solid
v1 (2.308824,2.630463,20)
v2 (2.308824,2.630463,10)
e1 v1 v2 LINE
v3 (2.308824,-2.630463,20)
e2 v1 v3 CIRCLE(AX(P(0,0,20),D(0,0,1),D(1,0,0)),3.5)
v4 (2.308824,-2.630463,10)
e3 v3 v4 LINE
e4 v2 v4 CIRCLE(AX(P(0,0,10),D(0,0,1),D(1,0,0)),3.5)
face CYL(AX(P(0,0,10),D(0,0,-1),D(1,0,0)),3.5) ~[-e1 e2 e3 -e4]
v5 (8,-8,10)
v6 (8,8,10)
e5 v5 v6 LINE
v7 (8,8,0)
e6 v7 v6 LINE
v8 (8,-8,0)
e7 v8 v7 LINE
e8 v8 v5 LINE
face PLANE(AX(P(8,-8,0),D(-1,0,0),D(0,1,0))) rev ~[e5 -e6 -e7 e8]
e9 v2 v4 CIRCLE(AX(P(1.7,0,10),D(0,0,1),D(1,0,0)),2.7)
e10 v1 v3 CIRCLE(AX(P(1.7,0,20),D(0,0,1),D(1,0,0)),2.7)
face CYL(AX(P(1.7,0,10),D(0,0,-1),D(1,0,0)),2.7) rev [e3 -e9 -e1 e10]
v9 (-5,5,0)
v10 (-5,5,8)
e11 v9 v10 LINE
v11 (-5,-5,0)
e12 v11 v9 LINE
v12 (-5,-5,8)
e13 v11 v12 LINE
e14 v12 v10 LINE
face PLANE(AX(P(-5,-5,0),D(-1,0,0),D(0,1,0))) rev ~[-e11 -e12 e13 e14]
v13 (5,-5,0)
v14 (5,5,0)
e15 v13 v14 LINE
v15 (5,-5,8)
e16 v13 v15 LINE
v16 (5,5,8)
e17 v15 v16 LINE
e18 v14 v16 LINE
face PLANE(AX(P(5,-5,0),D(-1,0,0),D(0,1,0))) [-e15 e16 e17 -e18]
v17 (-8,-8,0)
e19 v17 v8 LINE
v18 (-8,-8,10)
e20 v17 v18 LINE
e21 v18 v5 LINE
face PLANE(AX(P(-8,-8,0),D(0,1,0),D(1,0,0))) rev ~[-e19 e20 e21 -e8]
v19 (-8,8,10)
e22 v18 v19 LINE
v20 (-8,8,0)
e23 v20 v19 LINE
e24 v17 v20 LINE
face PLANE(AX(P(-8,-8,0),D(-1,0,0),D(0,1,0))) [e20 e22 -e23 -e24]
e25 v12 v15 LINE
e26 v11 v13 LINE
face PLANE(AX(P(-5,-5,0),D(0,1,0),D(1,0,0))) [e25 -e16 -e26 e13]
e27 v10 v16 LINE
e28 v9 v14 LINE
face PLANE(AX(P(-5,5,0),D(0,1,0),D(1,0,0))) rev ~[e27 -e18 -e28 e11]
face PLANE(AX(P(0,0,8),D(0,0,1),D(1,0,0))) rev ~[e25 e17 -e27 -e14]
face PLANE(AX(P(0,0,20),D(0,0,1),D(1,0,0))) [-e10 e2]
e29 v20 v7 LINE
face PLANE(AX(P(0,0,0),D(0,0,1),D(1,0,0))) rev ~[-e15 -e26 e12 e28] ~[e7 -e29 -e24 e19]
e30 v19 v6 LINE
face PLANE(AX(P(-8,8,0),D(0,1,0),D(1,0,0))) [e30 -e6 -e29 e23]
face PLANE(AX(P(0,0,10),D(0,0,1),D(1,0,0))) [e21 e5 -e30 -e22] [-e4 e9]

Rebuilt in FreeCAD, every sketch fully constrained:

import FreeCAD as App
import Part
import Sketcher
from FreeCAD import Vector

doc = App.newDocument("Part")
body = doc.addObject("PartDesign::Body", "Body")

# Sketch on XY plane
sketch1 = body.newObject("Sketcher::SketchObject", "Sketch")
sketch1.AttachmentSupport = (doc.getObject("XY_Plane"), [""])
sketch1.MapMode = "FlatFace"
sketch1.addGeometry(Part.LineSegment(Vector(-5, 5, 0), Vector(-5, -5, 0)), False)
sketch1.addGeometry(Part.LineSegment(Vector(-5, -5, 0), Vector(5, -5, 0)), False)
sketch1.addGeometry(Part.LineSegment(Vector(5, -5, 0), Vector(5, 5, 0)), False)
sketch1.addGeometry(Part.LineSegment(Vector(5, 5, 0), Vector(-5, 5, 0)), False)
sketch1.addConstraint(Sketcher.Constraint("Coincident", 0, 2, 1, 1))
sketch1.addConstraint(Sketcher.Constraint("Coincident", 1, 2, 2, 1))
sketch1.addConstraint(Sketcher.Constraint("Coincident", 2, 2, 3, 1))
sketch1.addConstraint(Sketcher.Constraint("Coincident", 3, 2, 0, 1))
sketch1.addConstraint(Sketcher.Constraint("Vertical", 0))
sketch1.addConstraint(Sketcher.Constraint("Horizontal", 1))
sketch1.addConstraint(Sketcher.Constraint("Vertical", 2))
sketch1.addConstraint(Sketcher.Constraint("Horizontal", 3))
sketch1.addConstraint(Sketcher.Constraint("Symmetric", 0, 2, 2, 2, -1, 1))
sketch1.addConstraint(Sketcher.Constraint("Equal", 3, 0))
sketch1.addConstraint(Sketcher.Constraint("DistanceX", 1, 1, 1, 2, 10.0))
pad1 = body.newObject("PartDesign::Pad", "Pad")
pad1.Profile = sketch1
pad1.Length = 8
body2 = doc.addObject("PartDesign::Body", "Body001")

# Sketch on XY plane
sketch2 = body2.newObject("Sketcher::SketchObject", "Sketch001")
sketch2.AttachmentSupport = (doc.getObject("XY_Plane001"), [""])
sketch2.MapMode = "FlatFace"
sketch2.AttachmentOffset = App.Placement(Vector(0, 0, 10), App.Rotation())
sketch2.addGeometry(Part.Circle(Vector(1.7, 0, 0), Vector(0, 0, 1), 2.7), False)
sketch2.addConstraint(Sketcher.Constraint("PointOnObject", 0, 3, -1))
sketch2.addConstraint(Sketcher.Constraint("Diameter", 0, 5.4))
sketch2.addConstraint(Sketcher.Constraint("DistanceX", -1, 1, 0, 3, 1.7))
pad2 = body2.newObject("PartDesign::Pad", "Pad001")
pad2.Profile = sketch2
pad2.Length = 10
body3 = doc.addObject("PartDesign::Body", "Body002")

# Sketch on XY plane
sketch3 = body3.newObject("Sketcher::SketchObject", "Sketch002")
sketch3.AttachmentSupport = (doc.getObject("XY_Plane002"), [""])
sketch3.MapMode = "FlatFace"
sketch3.AttachmentOffset = App.Placement(Vector(0, 0, 10), App.Rotation())
sketch3.addGeometry(Part.Circle(Vector(0, 0, 0), Vector(0, 0, 1), 3.5), False)
sketch3.addConstraint(Sketcher.Constraint("Coincident", 0, 3, -1, 1))
sketch3.addConstraint(Sketcher.Constraint("Diameter", 0, 7.0))
pad3 = body3.newObject("PartDesign::Pad", "Pad002")
pad3.Profile = sketch3
pad3.Length = 10
doc.recompute()

boolean = body3.newObject("PartDesign::Boolean", "Boolean")
boolean.Type = "Cut"
boolean.addObjects([body2])
body4 = doc.addObject("PartDesign::Body", "Body003")

# Sketch on XY plane
sketch4 = body4.newObject("Sketcher::SketchObject", "Sketch003")
sketch4.AttachmentSupport = (doc.getObject("XY_Plane003"), [""])
sketch4.MapMode = "FlatFace"
sketch4.addGeometry(Part.LineSegment(Vector(-8, 8, 0), Vector(-8, -8, 0)), False)
sketch4.addGeometry(Part.LineSegment(Vector(-8, -8, 0), Vector(8, -8, 0)), False)
sketch4.addGeometry(Part.LineSegment(Vector(8, -8, 0), Vector(8, 8, 0)), False)
sketch4.addGeometry(Part.LineSegment(Vector(8, 8, 0), Vector(-8, 8, 0)), False)
sketch4.addConstraint(Sketcher.Constraint("Coincident", 0, 2, 1, 1))
sketch4.addConstraint(Sketcher.Constraint("Coincident", 1, 2, 2, 1))
sketch4.addConstraint(Sketcher.Constraint("Coincident", 2, 2, 3, 1))
sketch4.addConstraint(Sketcher.Constraint("Coincident", 3, 2, 0, 1))
sketch4.addConstraint(Sketcher.Constraint("Vertical", 0))
sketch4.addConstraint(Sketcher.Constraint("Horizontal", 1))
sketch4.addConstraint(Sketcher.Constraint("Vertical", 2))
sketch4.addConstraint(Sketcher.Constraint("Horizontal", 3))
sketch4.addConstraint(Sketcher.Constraint("Symmetric", 0, 2, 2, 2, -1, 1))
sketch4.addConstraint(Sketcher.Constraint("Equal", 3, 0))
sketch4.addConstraint(Sketcher.Constraint("DistanceX", 1, 1, 1, 2, 16.0))
pad4 = body4.newObject("PartDesign::Pad", "Pad003")
pad4.Profile = sketch4
pad4.Length = 10
doc.recompute()

boolean2 = body4.newObject("PartDesign::Boolean", "Boolean001")
boolean2.Type = "Fuse"
boolean2.addObjects([body3])
doc.recompute()

boolean3 = body4.newObject("PartDesign::Boolean", "Boolean002")
boolean3.Type = "Cut"
boolean3.addObjects([body])

doc.recompute()
